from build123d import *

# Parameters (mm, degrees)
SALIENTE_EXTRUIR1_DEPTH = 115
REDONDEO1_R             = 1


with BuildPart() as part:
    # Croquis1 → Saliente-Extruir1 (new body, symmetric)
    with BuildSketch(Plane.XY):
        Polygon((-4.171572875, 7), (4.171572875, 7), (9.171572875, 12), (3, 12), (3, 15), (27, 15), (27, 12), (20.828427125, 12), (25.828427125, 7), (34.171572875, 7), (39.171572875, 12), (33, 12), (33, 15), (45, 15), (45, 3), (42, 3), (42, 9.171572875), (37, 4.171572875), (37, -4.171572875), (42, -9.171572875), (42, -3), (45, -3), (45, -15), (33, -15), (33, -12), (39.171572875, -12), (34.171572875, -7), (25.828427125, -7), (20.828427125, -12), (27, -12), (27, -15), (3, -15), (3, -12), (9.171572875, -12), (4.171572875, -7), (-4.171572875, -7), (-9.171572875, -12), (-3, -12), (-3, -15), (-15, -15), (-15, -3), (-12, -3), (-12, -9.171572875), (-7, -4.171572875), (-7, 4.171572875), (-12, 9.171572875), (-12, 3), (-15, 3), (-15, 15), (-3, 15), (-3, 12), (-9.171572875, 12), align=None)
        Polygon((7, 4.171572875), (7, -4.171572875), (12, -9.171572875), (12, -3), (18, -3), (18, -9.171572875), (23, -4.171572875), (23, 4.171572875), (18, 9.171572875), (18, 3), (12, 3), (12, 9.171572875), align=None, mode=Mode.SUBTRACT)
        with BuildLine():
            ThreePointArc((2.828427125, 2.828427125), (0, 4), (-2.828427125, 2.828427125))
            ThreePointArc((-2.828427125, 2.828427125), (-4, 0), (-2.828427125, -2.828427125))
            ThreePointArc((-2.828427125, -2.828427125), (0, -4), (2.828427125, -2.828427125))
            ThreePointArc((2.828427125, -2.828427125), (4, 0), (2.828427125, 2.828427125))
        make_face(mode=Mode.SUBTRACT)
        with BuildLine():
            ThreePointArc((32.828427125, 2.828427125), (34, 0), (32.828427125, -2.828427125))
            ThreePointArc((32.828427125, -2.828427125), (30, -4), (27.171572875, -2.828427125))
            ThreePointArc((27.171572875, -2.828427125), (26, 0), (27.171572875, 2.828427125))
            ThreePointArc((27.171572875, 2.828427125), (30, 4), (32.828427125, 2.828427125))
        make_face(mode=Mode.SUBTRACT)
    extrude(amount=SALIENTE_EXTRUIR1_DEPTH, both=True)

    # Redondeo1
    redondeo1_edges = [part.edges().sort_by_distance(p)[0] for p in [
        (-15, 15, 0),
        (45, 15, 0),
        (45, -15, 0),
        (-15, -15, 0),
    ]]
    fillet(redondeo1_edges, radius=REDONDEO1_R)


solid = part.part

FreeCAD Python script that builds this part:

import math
import FreeCAD as App
import Part
import Sketcher

V = App.Vector


def edges_at(feature, points):
    """Names of the edges that pass closest to the given points."""
    edges = feature.Shape.Edges
    near = lambda p: min(range(len(edges)), key=lambda i: edges[i].distToShape(Part.Vertex(*p))[0])
    return sorted({f"Edge{near(p) + 1}" for p in points})


def add_polygon(sketch, points):
    """Adds a closed chain of lines whose ends are joined by coincident constraints."""
    first, n = sketch.GeometryCount, len(points)
    for a, b in zip(points, points[1:] + points[:1]):
        sketch.addGeometry(Part.LineSegment(App.Vector(*a, 0), App.Vector(*b, 0)), False)
    for i in range(n):
        sketch.addConstraint(Sketcher.Constraint("Coincident", first + i, 2, first + (i + 1) % n, 1))

doc = App.newDocument("Part")
body = doc.addObject("PartDesign::Body", "Body")

# Sketch on XY plane
sketch1 = body.newObject("Sketcher::SketchObject", "Sketch")
sketch1.AttachmentSupport = (doc.getObject("XY_Plane"), [""])
sketch1.MapMode = "FlatFace"
add_polygon(sketch1, [(4.2, 7), (-4.2, 7), (-9.2, 12), (-3, 12), (-3, 15), (-15, 15), (-15, 3), (-12, 3), (-12, 9.2), (-7, 4.2), (-7, -4.2), (-12, -9.2), (-12, -3), (-15, -3), (-15, -15), (-3, -15), (-3, -12), (-9.2, -12), (-4.2, -7), (4.2, -7), (9.2, -12), (3, -12), (3, -15), (27, -15), (27, -12), (20.8, -12), (25.8, -7), (34.2, -7), (39.2, -12), (33, -12), (33, -15), (45, -15), (45, -3), (42, -3), (42, -9.2), (37, -4.2), (37, 4.2), (42, 9.2), (42, 3), (45, 3), (45, 15), (33, 15), (33, 12), (39.2, 12), (34.2, 7), (25.8, 7), (20.8, 12), (27, 12), (27, 15), (3, 15), (3, 12), (9.2, 12)])  # lines 0-51
sketch1.addGeometry(Part.ArcOfCircle(Part.Circle(V(30, 0, 0), V(0, 0, 1), 4), math.radians(-45), math.radians(45)), False)  # 52
sketch1.addGeometry(Part.ArcOfCircle(Part.Circle(V(30, 0, 0), V(0, 0, 1), 4), math.radians(-135), math.radians(-45)), False)  # 53
sketch1.addGeometry(Part.ArcOfCircle(Part.Circle(V(30, 0, 0), V(0, 0, 1), 4), math.radians(135), math.radians(225)), False)  # 54
sketch1.addGeometry(Part.ArcOfCircle(Part.Circle(V(30, 0, 0), V(0, 0, 1), 4), math.radians(45), math.radians(135)), False)  # 55
add_polygon(sketch1, [(7, 4.2), (12, 9.2), (12, 3), (18, 3), (18, 9.2), (23, 4.2), (23, -4.2), (18, -9.2), (18, -3), (12, -3), (12, -9.2), (7, -4.2)])  # lines 56-67
sketch1.addGeometry(Part.ArcOfCircle(Part.Circle(V(0, 0, 0), V(0, 0, 1), 4), math.radians(-45), math.radians(45)), False)  # 68
sketch1.addGeometry(Part.ArcOfCircle(Part.Circle(V(0, 0, 0), V(0, 0, 1), 4), math.radians(-135), math.radians(-45)), False)  # 69
sketch1.addGeometry(Part.ArcOfCircle(Part.Circle(V(0, 0, 0), V(0, 0, 1), 4), math.radians(135), math.radians(225)), False)  # 70
sketch1.addGeometry(Part.ArcOfCircle(Part.Circle(V(0, 0, 0), V(0, 0, 1), 4), math.radians(45), math.radians(135)), False)  # 71
sketch1.addConstraint([
    Sketcher.Constraint("Tangent", 52, 1, 53, 2),
    Sketcher.Constraint("Tangent", 53, 1, 54, 2),
    Sketcher.Constraint("Tangent", 54, 1, 55, 2),
    Sketcher.Constraint("Tangent", 55, 1, 52, 2),
    Sketcher.Constraint("Tangent", 68, 1, 69, 2),
    Sketcher.Constraint("Tangent", 69, 1, 70, 2),
    Sketcher.Constraint("Tangent", 70, 1, 71, 2),
    Sketcher.Constraint("Tangent", 71, 1, 68, 2),
    Sketcher.Constraint("Horizontal", 0),
    Sketcher.Constraint("Horizontal", 2),
    Sketcher.Constraint("Vertical", 3),
    Sketcher.Constraint("Horizontal", 4),
    Sketcher.Constraint("Vertical", 5),
    Sketcher.Constraint("Horizontal", 6),
    Sketcher.Constraint("Vertical", 7),
    Sketcher.Constraint("Vertical", 9),
    Sketcher.Constraint("Vertical", 11),
    Sketcher.Constraint("Horizontal", 12),
    Sketcher.Constraint("Vertical", 13),
    Sketcher.Constraint("Horizontal", 14),
    Sketcher.Constraint("Vertical", 15),
    Sketcher.Constraint("Horizontal", 16),
    Sketcher.Constraint("Horizontal", 18),
    Sketcher.Constraint("Horizontal", 20),
    Sketcher.Constraint("Vertical", 21),
    Sketcher.Constraint("Horizontal", 22),
    Sketcher.Constraint("Vertical", 23),
    Sketcher.Constraint("Horizontal", 24),
    Sketcher.Constraint("Horizontal", 26),
    Sketcher.Constraint("Horizontal", 28),
    Sketcher.Constraint("Vertical", 29),
    Sketcher.Constraint("Horizontal", 30),
    Sketcher.Constraint("Vertical", 31),
    Sketcher.Constraint("Horizontal", 32),
    Sketcher.Constraint("Vertical", 33),
    Sketcher.Constraint("Vertical", 35),
    Sketcher.Constraint("Vertical", 37),
    Sketcher.Constraint("Horizontal", 38),
    Sketcher.Constraint("Vertical", 39),
    Sketcher.Constraint("Horizontal", 40),
    Sketcher.Constraint("Vertical", 41),
    Sketcher.Constraint("Horizontal", 42),
    Sketcher.Constraint("Horizontal", 44),
    Sketcher.Constraint("Horizontal", 46),
    Sketcher.Constraint("Vertical", 47),
    Sketcher.Constraint("Horizontal", 48),
    Sketcher.Constraint("Vertical", 49),
    Sketcher.Constraint("Horizontal", 50),
    Sketcher.Constraint("Vertical", 57),
    Sketcher.Constraint("Horizontal", 58),
    Sketcher.Constraint("Vertical", 59),
    Sketcher.Constraint("Vertical", 61),
    Sketcher.Constraint("Vertical", 63),
    Sketcher.Constraint("Horizontal", 64),
    Sketcher.Constraint("Vertical", 65),
    Sketcher.Constraint("Vertical", 67),
    Sketcher.Constraint("Coincident", 68, 3, -1, 1),
    Sketcher.Constraint("Equal", 52, 53),
    Sketcher.Constraint("Equal", 55, 68),
    Sketcher.Constraint("Equal", 68, 69),
    Sketcher.Constraint("Symmetric", 0, 2, 18, 2, -1, 1),
    Sketcher.Constraint("Symmetric", 1, 2, 19, 2, -1, 1),
    Sketcher.Constraint("Symmetric", 3, 2, 21, 2, -1, 1),
    Sketcher.Constraint("Symmetric", 14, 2, 48, 2, -1, 1),
    Sketcher.Constraint("Symmetric", 16, 2, 50, 2, -1, 1),
    Sketcher.Constraint("Symmetric", 10, 2, 56, 2, -1, 1),
    Sketcher.Constraint("Symmetric", 6, 2, 64, 2, -1, 1),
    Sketcher.Constraint("Symmetric", 8, 2, 66, 2, -1, 1),
    Sketcher.Constraint("Symmetric", 16, 2, 19, 2, -2),
    Sketcher.Constraint("Symmetric", 14, 2, 21, 2, -2),
    Sketcher.Constraint("Symmetric", 7, 2, 56, 2, -2),
    Sketcher.Constraint("Symmetric", 5, 2, 12, 2, -1),
    Sketcher.Constraint("Symmetric", 33, 2, 36, 2, -1),
    Sketcher.Constraint("Symmetric", 31, 2, 38, 2, -1),
    Sketcher.Constraint("Symmetric", 29, 2, 40, 2, -1),
    Sketcher.Constraint("Symmetric", 27, 2, 42, 2, -1),
    Sketcher.Constraint("Symmetric", 26, 2, 43, 2, -1),
    Sketcher.Constraint("Symmetric", 24, 2, 45, 2, -1),
    Sketcher.Constraint("Symmetric", 53, 1, 54, 1, -1),
    Sketcher.Constraint("Symmetric", 59, 2, 62, 2, -1),
    Sketcher.Constraint("Parallel", 1, 8),
    Sketcher.Constraint("Perpendicular", 8, 10),
    Sketcher.Constraint("Parallel", 10, 17),
    Sketcher.Constraint("Perpendicular", 19, 25),
    Sketcher.Constraint("Perpendicular", 25, 27),
    Sketcher.Constraint("Parallel", 27, 34),
    Sketcher.Constraint("Perpendicular", 34, 36),
    Sketcher.Constraint("Parallel", 36, 43),
    Sketcher.Constraint("Perpendicular", 43, 45),
    Sketcher.Constraint("Perpendicular", 45, 51),
    Sketcher.Constraint("Parallel", 51, 56),
    Sketcher.Constraint("Perpendicular", 56, 60),
    Sketcher.Constraint("Perpendicular", 60, 62),
    Sketcher.Constraint("Perpendicular", 62, 66),
    Sketcher.Constraint("Horizontal", 20, 2, 23, 2),
    Sketcher.Constraint("Horizontal", 18, 2, 25, 2),
    Sketcher.Constraint("Horizontal", 24, 2, 27, 2),
    Sketcher.Constraint("Horizontal", 22, 2, 29, 2),
    Sketcher.Constraint("Horizontal", 12, 2, 31, 2),
    Sketcher.Constraint("Horizontal", 10, 2, 33, 2),
    Sketcher.Constraint("Horizontal", 9, 2, 34, 2),
    Sketcher.Constraint("Horizontal", 52, 1, 53, 1),
    Sketcher.Constraint("Horizontal", 54, 1, 55, 1),
    Sketcher.Constraint("Horizontal", 38, 2, 57, 2),
    Sketcher.Constraint("Horizontal", 56, 2, 59, 2),
    Sketcher.Constraint("Horizontal", 35, 2, 60, 2),
    Sketcher.Constraint("Horizontal", 53, 1, 68, 1),
    Sketcher.Constraint("Horizontal", 68, 1, 69, 1),
    Sketcher.Constraint("Horizontal", 55, 1, 70, 1),
    Sketcher.Constraint("Horizontal", 70, 1, 71, 1),
    Sketcher.Constraint("Vertical", 23, 2, 46, 2),
    Sketcher.Constraint("Equal", 20, 24),
    Sketcher.Constraint("Equal", 18, 26),
    Sketcher.Constraint("Equal", 24, 28),
    Sketcher.Constraint("Equal", 14, 30),
    Sketcher.Constraint("Equal", 12, 32),
    Sketcher.Constraint("Equal", 38, 3),
    Sketcher.Constraint("Equal", 40, 5),
    Sketcher.Constraint("Equal", 50, 7),
    Sketcher.Constraint("Equal", 44, 9),
    Sketcher.Constraint("Equal", 1, 8),
    Sketcher.Constraint("Radius", 52, 4.0),
    Sketcher.Constraint("DistanceX", 4, 2, 4, 1, 12.0),
    Sketcher.Constraint("DistanceX", 6, 1, 6, 2, 3.0),
    Sketcher.Constraint("DistanceX", 22, 1, 22, 2, 24.0),
    Sketcher.Constraint("DistanceX", 58, 1, 58, 2, 6.0),
    Sketcher.Constraint("DistanceX", -1, 1, 52, 3, 30.0),
    Sketcher.Constraint("DistanceY", -1, 1, 0, 2, 7.0),
    Sketcher.Constraint("DistanceY", -1, 1, 1, 2, 12.0),
    Sketcher.Constraint("DistanceX", 0, 2, 0, 1, 8.343146),
    Sketcher.Constraint("DistanceX", -1, 1, 52, 1, 32.828427),
])
pad1 = body.newObject("PartDesign::Pad", "Pad")
pad1.Profile = sketch1
pad1.Length = 230
pad1.Midplane = True
doc.recompute()

fillet = body.newObject("PartDesign::Fillet", "Fillet")
fillet.Base = (pad1, edges_at(pad1, [
    (-15, 15, 0),
    (45, 15, 0),
    (45, -15, 0),
    (-15, -15, 0),
]))
fillet.Radius = 1

doc.recompute()
